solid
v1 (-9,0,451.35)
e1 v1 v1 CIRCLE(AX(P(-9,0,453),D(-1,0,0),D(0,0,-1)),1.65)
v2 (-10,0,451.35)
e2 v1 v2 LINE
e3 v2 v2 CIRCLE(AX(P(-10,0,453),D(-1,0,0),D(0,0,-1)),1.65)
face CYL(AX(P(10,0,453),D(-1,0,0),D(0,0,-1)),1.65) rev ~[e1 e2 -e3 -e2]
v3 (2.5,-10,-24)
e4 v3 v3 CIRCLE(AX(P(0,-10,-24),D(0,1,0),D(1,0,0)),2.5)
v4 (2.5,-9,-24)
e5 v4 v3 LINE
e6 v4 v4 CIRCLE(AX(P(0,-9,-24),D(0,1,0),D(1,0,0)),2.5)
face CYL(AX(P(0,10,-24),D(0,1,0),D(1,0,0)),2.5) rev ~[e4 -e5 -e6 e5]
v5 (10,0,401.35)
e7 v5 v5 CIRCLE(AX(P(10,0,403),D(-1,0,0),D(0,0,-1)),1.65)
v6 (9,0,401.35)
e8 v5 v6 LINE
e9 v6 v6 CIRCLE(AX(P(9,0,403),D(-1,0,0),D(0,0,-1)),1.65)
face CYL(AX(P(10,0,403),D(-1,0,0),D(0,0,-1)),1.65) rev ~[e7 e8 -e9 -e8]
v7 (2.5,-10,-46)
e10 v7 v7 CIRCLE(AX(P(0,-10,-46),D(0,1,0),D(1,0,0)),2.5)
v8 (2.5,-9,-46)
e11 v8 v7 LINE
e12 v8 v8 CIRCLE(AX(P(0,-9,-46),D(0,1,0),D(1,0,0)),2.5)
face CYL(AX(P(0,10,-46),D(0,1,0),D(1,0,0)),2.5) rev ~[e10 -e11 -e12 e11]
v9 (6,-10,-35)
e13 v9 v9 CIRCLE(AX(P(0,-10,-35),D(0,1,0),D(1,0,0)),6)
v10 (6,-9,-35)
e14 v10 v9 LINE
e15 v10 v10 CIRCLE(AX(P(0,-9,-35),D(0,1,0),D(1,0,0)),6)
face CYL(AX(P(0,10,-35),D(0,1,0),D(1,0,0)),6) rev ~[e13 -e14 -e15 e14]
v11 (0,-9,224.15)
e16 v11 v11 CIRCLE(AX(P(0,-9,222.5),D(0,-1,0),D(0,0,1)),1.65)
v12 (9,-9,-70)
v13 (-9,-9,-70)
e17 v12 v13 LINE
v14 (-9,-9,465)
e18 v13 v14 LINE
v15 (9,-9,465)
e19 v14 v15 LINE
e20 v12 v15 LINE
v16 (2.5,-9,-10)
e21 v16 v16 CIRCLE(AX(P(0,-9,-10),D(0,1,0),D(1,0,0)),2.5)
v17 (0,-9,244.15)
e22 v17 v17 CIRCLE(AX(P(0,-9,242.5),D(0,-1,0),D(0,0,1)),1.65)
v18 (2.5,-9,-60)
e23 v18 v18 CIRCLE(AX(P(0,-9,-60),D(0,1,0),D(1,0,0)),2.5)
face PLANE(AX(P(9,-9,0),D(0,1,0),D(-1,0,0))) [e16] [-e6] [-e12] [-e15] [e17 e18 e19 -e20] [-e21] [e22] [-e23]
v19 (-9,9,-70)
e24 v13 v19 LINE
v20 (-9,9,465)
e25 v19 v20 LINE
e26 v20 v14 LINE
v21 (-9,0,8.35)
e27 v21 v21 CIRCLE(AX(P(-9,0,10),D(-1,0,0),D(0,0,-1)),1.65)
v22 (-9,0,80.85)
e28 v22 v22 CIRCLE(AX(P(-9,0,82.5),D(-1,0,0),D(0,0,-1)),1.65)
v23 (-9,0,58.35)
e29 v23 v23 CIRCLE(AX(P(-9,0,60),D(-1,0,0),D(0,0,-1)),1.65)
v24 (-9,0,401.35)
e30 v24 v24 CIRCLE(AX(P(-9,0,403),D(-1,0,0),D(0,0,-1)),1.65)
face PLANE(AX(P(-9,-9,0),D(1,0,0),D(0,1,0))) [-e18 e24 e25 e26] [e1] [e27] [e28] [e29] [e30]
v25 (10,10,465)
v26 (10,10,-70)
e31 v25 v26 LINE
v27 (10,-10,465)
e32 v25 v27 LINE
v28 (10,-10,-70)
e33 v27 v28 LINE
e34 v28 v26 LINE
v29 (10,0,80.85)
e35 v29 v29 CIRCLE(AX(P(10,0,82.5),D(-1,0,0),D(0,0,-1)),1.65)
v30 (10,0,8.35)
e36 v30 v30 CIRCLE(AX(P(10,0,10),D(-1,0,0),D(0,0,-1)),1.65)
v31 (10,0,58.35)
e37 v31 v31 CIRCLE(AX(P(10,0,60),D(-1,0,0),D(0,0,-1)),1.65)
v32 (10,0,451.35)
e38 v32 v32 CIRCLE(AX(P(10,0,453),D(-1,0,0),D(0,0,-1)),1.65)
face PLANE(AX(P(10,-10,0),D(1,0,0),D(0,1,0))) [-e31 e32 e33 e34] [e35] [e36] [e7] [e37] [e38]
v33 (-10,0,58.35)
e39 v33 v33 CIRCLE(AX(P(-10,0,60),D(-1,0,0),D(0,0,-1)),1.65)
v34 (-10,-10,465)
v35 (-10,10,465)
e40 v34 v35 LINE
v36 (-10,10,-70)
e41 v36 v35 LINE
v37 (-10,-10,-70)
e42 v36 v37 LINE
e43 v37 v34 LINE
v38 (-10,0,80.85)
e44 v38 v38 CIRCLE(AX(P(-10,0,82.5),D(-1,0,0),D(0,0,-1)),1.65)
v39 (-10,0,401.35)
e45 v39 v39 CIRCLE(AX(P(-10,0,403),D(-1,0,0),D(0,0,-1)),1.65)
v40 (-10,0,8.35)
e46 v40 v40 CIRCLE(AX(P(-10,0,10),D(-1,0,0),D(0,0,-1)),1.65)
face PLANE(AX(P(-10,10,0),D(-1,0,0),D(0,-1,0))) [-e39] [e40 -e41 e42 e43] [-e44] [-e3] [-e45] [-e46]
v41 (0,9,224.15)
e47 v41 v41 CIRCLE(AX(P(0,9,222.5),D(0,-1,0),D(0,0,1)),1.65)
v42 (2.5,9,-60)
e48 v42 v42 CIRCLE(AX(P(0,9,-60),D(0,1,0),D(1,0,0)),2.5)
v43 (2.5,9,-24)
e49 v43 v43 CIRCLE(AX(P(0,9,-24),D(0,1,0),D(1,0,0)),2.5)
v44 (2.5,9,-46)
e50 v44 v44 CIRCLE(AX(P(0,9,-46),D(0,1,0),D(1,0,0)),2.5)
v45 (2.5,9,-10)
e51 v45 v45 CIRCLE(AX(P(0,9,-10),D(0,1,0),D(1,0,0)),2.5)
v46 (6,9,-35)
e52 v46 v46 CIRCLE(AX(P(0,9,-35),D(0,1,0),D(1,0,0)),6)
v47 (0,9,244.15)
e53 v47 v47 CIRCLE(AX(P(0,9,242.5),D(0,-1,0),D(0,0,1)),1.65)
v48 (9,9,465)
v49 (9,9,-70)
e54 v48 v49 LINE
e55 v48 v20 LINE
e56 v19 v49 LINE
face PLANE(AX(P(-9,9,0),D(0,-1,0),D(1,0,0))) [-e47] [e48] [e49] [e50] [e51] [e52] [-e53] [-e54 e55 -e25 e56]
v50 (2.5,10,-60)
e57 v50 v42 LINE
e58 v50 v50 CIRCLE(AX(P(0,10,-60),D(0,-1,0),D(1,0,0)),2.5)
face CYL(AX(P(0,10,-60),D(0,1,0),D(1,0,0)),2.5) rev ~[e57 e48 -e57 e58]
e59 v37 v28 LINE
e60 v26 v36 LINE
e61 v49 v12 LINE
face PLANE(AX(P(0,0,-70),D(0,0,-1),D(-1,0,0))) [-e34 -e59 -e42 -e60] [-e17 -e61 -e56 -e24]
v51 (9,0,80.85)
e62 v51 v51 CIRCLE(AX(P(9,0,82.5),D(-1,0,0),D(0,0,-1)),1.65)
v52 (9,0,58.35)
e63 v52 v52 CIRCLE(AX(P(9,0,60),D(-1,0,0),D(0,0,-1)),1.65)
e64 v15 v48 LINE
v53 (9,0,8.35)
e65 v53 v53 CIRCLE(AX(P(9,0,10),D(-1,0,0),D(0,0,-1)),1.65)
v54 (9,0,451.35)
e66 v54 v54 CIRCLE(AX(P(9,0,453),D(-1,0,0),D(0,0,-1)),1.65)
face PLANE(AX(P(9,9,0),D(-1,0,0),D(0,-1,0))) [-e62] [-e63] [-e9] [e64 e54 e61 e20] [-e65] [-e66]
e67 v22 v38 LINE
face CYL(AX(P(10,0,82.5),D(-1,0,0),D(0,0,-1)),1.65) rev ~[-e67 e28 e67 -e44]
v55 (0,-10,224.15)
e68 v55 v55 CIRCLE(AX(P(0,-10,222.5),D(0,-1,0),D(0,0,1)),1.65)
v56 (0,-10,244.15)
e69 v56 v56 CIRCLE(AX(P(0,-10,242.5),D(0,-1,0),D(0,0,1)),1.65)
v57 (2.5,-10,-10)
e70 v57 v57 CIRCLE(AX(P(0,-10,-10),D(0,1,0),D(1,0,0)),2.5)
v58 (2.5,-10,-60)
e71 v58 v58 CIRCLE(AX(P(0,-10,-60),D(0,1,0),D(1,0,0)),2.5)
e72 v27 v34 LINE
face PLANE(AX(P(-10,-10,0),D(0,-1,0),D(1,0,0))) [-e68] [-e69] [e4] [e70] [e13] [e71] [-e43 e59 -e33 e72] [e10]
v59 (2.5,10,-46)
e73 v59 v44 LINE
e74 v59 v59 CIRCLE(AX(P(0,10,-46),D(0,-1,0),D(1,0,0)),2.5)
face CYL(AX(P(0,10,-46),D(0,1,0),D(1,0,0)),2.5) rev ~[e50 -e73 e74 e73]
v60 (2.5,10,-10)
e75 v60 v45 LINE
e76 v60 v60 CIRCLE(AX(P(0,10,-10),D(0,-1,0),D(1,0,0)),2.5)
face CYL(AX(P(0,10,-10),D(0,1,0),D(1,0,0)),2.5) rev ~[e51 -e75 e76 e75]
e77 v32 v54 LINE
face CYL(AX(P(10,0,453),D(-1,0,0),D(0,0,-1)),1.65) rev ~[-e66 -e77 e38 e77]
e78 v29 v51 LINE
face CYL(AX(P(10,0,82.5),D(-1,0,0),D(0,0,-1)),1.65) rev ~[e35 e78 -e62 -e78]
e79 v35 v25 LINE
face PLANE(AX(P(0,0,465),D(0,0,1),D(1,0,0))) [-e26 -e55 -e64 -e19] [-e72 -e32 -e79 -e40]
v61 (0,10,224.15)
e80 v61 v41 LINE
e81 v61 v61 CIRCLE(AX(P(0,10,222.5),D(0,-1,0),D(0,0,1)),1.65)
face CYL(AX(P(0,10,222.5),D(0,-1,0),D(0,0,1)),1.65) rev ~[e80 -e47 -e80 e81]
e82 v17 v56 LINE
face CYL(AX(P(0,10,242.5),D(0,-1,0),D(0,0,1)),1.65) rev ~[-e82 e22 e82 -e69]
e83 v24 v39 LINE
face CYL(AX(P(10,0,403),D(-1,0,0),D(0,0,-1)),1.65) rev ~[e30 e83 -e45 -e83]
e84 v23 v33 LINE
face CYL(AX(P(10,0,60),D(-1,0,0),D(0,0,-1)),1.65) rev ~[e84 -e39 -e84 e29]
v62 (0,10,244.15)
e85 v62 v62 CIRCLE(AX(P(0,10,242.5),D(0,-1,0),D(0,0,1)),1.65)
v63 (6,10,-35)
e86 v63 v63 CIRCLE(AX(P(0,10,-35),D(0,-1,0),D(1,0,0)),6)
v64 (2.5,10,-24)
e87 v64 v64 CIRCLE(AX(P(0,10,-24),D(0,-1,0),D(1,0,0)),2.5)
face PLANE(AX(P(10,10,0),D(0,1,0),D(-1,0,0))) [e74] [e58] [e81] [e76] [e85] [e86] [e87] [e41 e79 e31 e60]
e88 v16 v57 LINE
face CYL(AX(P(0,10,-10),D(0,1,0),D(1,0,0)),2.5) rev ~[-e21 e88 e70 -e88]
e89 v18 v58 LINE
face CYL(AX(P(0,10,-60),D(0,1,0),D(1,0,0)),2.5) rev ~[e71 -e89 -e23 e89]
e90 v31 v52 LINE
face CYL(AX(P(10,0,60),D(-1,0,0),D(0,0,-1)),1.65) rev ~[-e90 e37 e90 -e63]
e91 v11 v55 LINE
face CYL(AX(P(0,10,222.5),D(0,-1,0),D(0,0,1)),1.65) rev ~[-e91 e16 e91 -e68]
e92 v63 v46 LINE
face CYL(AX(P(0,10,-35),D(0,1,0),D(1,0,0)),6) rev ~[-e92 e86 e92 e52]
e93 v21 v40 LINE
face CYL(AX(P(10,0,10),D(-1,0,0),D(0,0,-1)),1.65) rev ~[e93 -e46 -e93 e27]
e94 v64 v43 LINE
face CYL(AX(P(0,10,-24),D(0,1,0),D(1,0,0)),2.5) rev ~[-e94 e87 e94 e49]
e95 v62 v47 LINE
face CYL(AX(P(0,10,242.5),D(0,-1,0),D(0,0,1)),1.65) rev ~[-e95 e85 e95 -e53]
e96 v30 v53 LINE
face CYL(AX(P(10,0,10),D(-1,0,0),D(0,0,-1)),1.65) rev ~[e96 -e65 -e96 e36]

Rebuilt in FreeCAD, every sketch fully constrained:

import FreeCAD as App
import Part
import Sketcher

V = App.Vector

doc = App.newDocument("Part")
body = doc.addObject("PartDesign::Body", "Body")

# Sketch on XY plane
sketch1 = body.newObject("Sketcher::SketchObject", "Sketch")
sketch1.AttachmentSupport = (doc.getObject("XY_Plane"), [""])
sketch1.MapMode = "FlatFace"
sketch1.addGeometry([
    Part.LineSegment(V(-10, -10, 0), V(10, -10, 0)),  # 0
    Part.LineSegment(V(10, -10, 0), V(10, 10, 0)),  # 1
    Part.LineSegment(V(10, 10, 0), V(-10, 10, 0)),  # 2
    Part.LineSegment(V(-10, 10, 0), V(-10, -10, 0)),  # 3
    Part.LineSegment(V(-9, 9, 0), V(9, 9, 0)),  # 4
    Part.LineSegment(V(9, 9, 0), V(9, -9, 0)),  # 5
    Part.LineSegment(V(9, -9, 0), V(-9, -9, 0)),  # 6
    Part.LineSegment(V(-9, -9, 0), V(-9, 9, 0)),  # 7
], False)
sketch1.addConstraint([
    Sketcher.Constraint("Coincident", 0, 2, 1, 1),
    Sketcher.Constraint("Coincident", 1, 2, 2, 1),
    Sketcher.Constraint("Coincident", 2, 2, 3, 1),
    Sketcher.Constraint("Coincident", 3, 2, 0, 1),
    Sketcher.Constraint("Coincident", 4, 2, 5, 1),
    Sketcher.Constraint("Coincident", 5, 2, 6, 1),
    Sketcher.Constraint("Coincident", 6, 2, 7, 1),
    Sketcher.Constraint("Coincident", 7, 2, 4, 1),
    Sketcher.Constraint("Horizontal", 0),
    Sketcher.Constraint("Vertical", 1),
    Sketcher.Constraint("Horizontal", 2),
    Sketcher.Constraint("Vertical", 3),
    Sketcher.Constraint("Horizontal", 4),
    Sketcher.Constraint("Vertical", 5),
    Sketcher.Constraint("Horizontal", 6),
    Sketcher.Constraint("Vertical", 7),
    Sketcher.Constraint("Symmetric", 0, 2, 2, 2, -1, 1),
    Sketcher.Constraint("Symmetric", 4, 2, 6, 2, -1, 1),
    Sketcher.Constraint("Equal", 2, 1),
    Sketcher.Constraint("Equal", 6, 5),
    Sketcher.Constraint("DistanceX", 0, 1, 0, 2, 20.0),
    Sketcher.Constraint("DistanceX", 4, 2, 1, 2, 1.0),
])
pad1 = body.newObject("PartDesign::Pad", "Pad")
pad1.Profile = sketch1
pad1.Length = 465

# Sketch on YZ plane
sketch2 = body.newObject("Sketcher::SketchObject", "Sketch001")
sketch2.AttachmentSupport = (doc.getObject("YZ_Plane"), [""])
sketch2.MapMode = "FlatFace"
sketch2.AttachmentOffset = App.Placement(V(0, 0, 10), App.Rotation())
sketch2.addGeometry([
    Part.Circle(V(0, 403, 0), V(0, 0, 1), 1.6),  # 0
    Part.Circle(V(0, 60, 0), V(0, 0, 1), 1.6),  # 1
    Part.Circle(V(0, 10, 0), V(0, 0, 1), 1.6),  # 2
    Part.Circle(V(0, 453, 0), V(0, 0, 1), 1.6),  # 3
    Part.Circle(V(0, 82.5, 0), V(0, 0, 1), 1.6),  # 4
], False)
sketch2.addConstraint([
    Sketcher.Constraint("Equal", 0, 1),
    Sketcher.Constraint("Equal", 1, 2),
    Sketcher.Constraint("Equal", 2, 3),
    Sketcher.Constraint("Equal", 3, 4),
    Sketcher.Constraint("PointOnObject", 0, 3, -2),
    Sketcher.Constraint("PointOnObject", 1, 3, -2),
    Sketcher.Constraint("PointOnObject", 2, 3, -2),
    Sketcher.Constraint("PointOnObject", 3, 3, -2),
    Sketcher.Constraint("PointOnObject", 4, 3, -2),
    Sketcher.Constraint("Diameter", 0, 3.3),
    Sketcher.Constraint("DistanceY", -1, 1, 0, 3, 403.0),
    Sketcher.Constraint("DistanceY", -1, 1, 1, 3, 60.0),
    Sketcher.Constraint("DistanceY", -1, 1, 2, 3, 10.0),
    Sketcher.Constraint("DistanceY", -1, 1, 3, 3, 453.0),
    Sketcher.Constraint("DistanceY", -1, 1, 4, 3, 82.5),
])
doc.recompute()
hole = body.newObject("PartDesign::Hole", "Hole")
hole.Profile = sketch2
hole.ThreadType = "None"
hole.Diameter = 3.3
hole.DepthType = "ThroughAll"

# Sketch on XZ plane
sketch3 = body.newObject("Sketcher::SketchObject", "Sketch002")
sketch3.AttachmentSupport = (doc.getObject("XZ_Plane"), [""])
sketch3.MapMode = "FlatFace"
sketch3.AttachmentOffset = App.Placement(V(0, 0, -10), App.Rotation())
sketch3.addGeometry([
    Part.Circle(V(0, 242.5, 0), V(0, 0, 1), 1.6),
    Part.Circle(V(0, 222.5, 0), V(0, 0, 1), 1.6),
], False)
sketch3.addConstraint([
    Sketcher.Constraint("Equal", 0, 1),
    Sketcher.Constraint("PointOnObject", 0, 3, -2),
    Sketcher.Constraint("PointOnObject", 1, 3, -2),
    Sketcher.Constraint("Diameter", 0, 3.3),
    Sketcher.Constraint("DistanceY", 1, 3, 0, 3, 20.0),
    Sketcher.Constraint("DistanceY", -1, 1, 0, 3, 242.5),
])
doc.recompute()
hole2 = body.newObject("PartDesign::Hole", "Hole001")
hole2.Profile = sketch3
hole2.ThreadType = "None"
hole2.Diameter = 3.3
hole2.DepthType = "ThroughAll"
hole2.Reversed = True

# Sketch on XY plane
sketch4 = body.newObject("Sketcher::SketchObject", "Sketch003")
sketch4.AttachmentSupport = (doc.getObject("XY_Plane"), [""])
sketch4.MapMode = "FlatFace"
sketch4.addGeometry([
    Part.LineSegment(V(-10, 10, 0), V(10, 10, 0)),  # 0
    Part.LineSegment(V(10, 10, 0), V(10, -10, 0)),  # 1
    Part.LineSegment(V(10, -10, 0), V(-10, -10, 0)),  # 2
    Part.LineSegment(V(-10, -10, 0), V(-10, 10, 0)),  # 3
    Part.LineSegment(V(9, -9, 0), V(9, 9, 0)),  # 4
    Part.LineSegment(V(9, 9, 0), V(-9, 9, 0)),  # 5
    Part.LineSegment(V(-9, 9, 0), V(-9, -9, 0)),  # 6
    Part.LineSegment(V(-9, -9, 0), V(9, -9, 0)),  # 7
], False)
sketch4.addConstraint([
    Sketcher.Constraint("Coincident", 0, 2, 1, 1),
    Sketcher.Constraint("Coincident", 1, 2, 2, 1),
    Sketcher.Constraint("Coincident", 2, 2, 3, 1),
    Sketcher.Constraint("Coincident", 3, 2, 0, 1),
    Sketcher.Constraint("Coincident", 4, 2, 5, 1),
    Sketcher.Constraint("Coincident", 5, 2, 6, 1),
    Sketcher.Constraint("Coincident", 6, 2, 7, 1),
    Sketcher.Constraint("Coincident", 7, 2, 4, 1),
    Sketcher.Constraint("Horizontal", 0),
    Sketcher.Constraint("Vertical", 1),
    Sketcher.Constraint("Horizontal", 2),
    Sketcher.Constraint("Vertical", 3),
    Sketcher.Constraint("Vertical", 4),
    Sketcher.Constraint("Horizontal", 5),
    Sketcher.Constraint("Vertical", 6),
    Sketcher.Constraint("Horizontal", 7),
    Sketcher.Constraint("Symmetric", 0, 2, 2, 2, -1, 1),
    Sketcher.Constraint("Symmetric", 4, 2, 6, 2, -1, 1),
    Sketcher.Constraint("Equal", 2, 1),
    Sketcher.Constraint("Equal", 7, 4),
    Sketcher.Constraint("DistanceX", 0, 1, 0, 2, 20.0),
    Sketcher.Constraint("DistanceX", 5, 2, 5, 1, 18.0),
])
pad2 = body.newObject("PartDesign::Pad", "Pad001")
pad2.Profile = sketch4
pad2.Length = 70
pad2.Reversed = True

# Sketch on XZ plane
sketch5 = body.newObject("Sketcher::SketchObject", "Sketch004")
sketch5.AttachmentSupport = (doc.getObject("XZ_Plane"), [""])
sketch5.MapMode = "FlatFace"
sketch5.AttachmentOffset = App.Placement(V(0, 0, -10), App.Rotation())
sketch5.addGeometry([
    Part.Circle(V(0, -10, 0), V(0, 0, 1), 2.5),  # 0
    Part.Circle(V(0, -60, 0), V(0, 0, 1), 2.5),  # 1
    Part.Circle(V(0, -46, 0), V(0, 0, 1), 2.5),  # 2
    Part.Circle(V(0, -35, 0), V(0, 0, 1), 6),  # 3
    Part.Circle(V(0, -24, 0), V(0, 0, 1), 2.5),  # 4
], False)
sketch5.addConstraint([
    Sketcher.Constraint("Equal", 0, 1),
    Sketcher.Constraint("Equal", 1, 2),
    Sketcher.Constraint("Equal", 2, 4),
    Sketcher.Constraint("PointOnObject", 0, 3, -2),
    Sketcher.Constraint("PointOnObject", 1, 3, -2),
    Sketcher.Constraint("PointOnObject", 2, 3, -2),
    Sketcher.Constraint("PointOnObject", 3, 3, -2),
    Sketcher.Constraint("PointOnObject", 4, 3, -2),
    Sketcher.Constraint("Diameter", 0, 5.0),
    Sketcher.Constraint("Diameter", 3, 12.0),
    Sketcher.Constraint("DistanceY", 1, 3, -1, 1, 60.0),
    Sketcher.Constraint("DistanceY", 3, 3, -1, 1, 35.0),
    Sketcher.Constraint("DistanceY", 2, 3, 3, 3, 11.0),
    Sketcher.Constraint("DistanceY", 3, 3, 0, 3, 25.0),
    Sketcher.Constraint("DistanceY", 3, 3, 4, 3, 11.0),
])
pocket1 = body.newObject("PartDesign::Pocket", "Pocket")
pocket1.Profile = sketch5
pocket1.Length = 70
pocket1.Reversed = True

doc.recompute()
